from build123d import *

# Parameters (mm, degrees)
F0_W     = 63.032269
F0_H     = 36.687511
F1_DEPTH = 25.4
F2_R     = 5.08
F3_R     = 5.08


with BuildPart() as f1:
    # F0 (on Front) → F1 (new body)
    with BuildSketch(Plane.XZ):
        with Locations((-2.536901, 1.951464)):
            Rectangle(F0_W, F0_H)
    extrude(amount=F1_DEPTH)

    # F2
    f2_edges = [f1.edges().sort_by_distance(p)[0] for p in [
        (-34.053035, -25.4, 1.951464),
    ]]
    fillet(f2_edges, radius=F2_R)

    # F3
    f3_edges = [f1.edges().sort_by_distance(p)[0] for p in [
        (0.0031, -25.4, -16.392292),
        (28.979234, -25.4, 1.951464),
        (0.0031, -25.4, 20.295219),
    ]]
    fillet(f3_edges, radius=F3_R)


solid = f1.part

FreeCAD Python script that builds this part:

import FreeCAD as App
import Part
import Sketcher
from FreeCAD import Vector
Q = App.Units.Quantity


def edges_at(feature, points):
    """Names of the edges that pass closest to the given points."""
    edges = feature.Shape.Edges
    near = lambda p: min(range(len(edges)), key=lambda i: edges[i].distToShape(Part.Vertex(*p))[0])
    return sorted({f"Edge{near(p) + 1}" for p in points})


def add_polygon(sketch, points):
    """Adds a closed chain of lines whose ends are joined by coincident constraints."""
    first, n = sketch.GeometryCount, len(points)
    for a, b in zip(points, points[1:] + points[:1]):
        sketch.addGeometry(Part.LineSegment(App.Vector(*a, 0), App.Vector(*b, 0)), False)
    for i in range(n):
        sketch.addConstraint(Sketcher.Constraint("Coincident", first + i, 2, first + (i + 1) % n, 1))

doc = App.newDocument("Part")
body = doc.addObject("PartDesign::Body", "Body")

# Sketch on XZ plane
sketch1 = body.newObject("Sketcher::SketchObject", "Sketch")
sketch1.AttachmentSupport = (doc.getObject("XZ_Plane"), [""])
sketch1.MapMode = "FlatFace"
add_polygon(sketch1, [(-34, 20), (-34, -16), (29, -16), (29, 20)])  # lines 0-3
sketch1.addConstraint([
    Sketcher.Constraint("Vertical", 0),
    Sketcher.Constraint("Horizontal", 1),
    Sketcher.Constraint("Vertical", 2),
    Sketcher.Constraint("Horizontal", 3),
    Sketcher.Constraint("DistanceX", 1, 1, 1, 2, Q("63.032269 mm")),
    Sketcher.Constraint("DistanceY", 0, 2, 0, 1, Q("36.687511 mm")),
    Sketcher.Constraint("DistanceY", 0, 2, -1, 1, Q("16.392291 mm")),
    Sketcher.Constraint("DistanceX", 0, 2, -1, 1, Q("34.053036 mm")),
])
pad1 = body.newObject("PartDesign::Pad", "Pad")
pad1.Profile = sketch1
pad1.Length = Q("1 in")
doc.recompute()

fillet = body.newObject("PartDesign::Fillet", "Fillet")
fillet.Base = (pad1, edges_at(pad1, [(-34.053, -25.4, 1.951)]))
fillet.Radius = Q("0.2 in")
doc.recompute()

fillet2 = body.newObject("PartDesign::Fillet", "Fillet001")
fillet2.Base = (fillet, edges_at(fillet, [(0.003, -25.4, -16.392), (28.979, -25.4, 1.951), (0.003, -25.4, 20.295)]))
fillet2.Radius = Q("0.2 in")

doc.recompute()
